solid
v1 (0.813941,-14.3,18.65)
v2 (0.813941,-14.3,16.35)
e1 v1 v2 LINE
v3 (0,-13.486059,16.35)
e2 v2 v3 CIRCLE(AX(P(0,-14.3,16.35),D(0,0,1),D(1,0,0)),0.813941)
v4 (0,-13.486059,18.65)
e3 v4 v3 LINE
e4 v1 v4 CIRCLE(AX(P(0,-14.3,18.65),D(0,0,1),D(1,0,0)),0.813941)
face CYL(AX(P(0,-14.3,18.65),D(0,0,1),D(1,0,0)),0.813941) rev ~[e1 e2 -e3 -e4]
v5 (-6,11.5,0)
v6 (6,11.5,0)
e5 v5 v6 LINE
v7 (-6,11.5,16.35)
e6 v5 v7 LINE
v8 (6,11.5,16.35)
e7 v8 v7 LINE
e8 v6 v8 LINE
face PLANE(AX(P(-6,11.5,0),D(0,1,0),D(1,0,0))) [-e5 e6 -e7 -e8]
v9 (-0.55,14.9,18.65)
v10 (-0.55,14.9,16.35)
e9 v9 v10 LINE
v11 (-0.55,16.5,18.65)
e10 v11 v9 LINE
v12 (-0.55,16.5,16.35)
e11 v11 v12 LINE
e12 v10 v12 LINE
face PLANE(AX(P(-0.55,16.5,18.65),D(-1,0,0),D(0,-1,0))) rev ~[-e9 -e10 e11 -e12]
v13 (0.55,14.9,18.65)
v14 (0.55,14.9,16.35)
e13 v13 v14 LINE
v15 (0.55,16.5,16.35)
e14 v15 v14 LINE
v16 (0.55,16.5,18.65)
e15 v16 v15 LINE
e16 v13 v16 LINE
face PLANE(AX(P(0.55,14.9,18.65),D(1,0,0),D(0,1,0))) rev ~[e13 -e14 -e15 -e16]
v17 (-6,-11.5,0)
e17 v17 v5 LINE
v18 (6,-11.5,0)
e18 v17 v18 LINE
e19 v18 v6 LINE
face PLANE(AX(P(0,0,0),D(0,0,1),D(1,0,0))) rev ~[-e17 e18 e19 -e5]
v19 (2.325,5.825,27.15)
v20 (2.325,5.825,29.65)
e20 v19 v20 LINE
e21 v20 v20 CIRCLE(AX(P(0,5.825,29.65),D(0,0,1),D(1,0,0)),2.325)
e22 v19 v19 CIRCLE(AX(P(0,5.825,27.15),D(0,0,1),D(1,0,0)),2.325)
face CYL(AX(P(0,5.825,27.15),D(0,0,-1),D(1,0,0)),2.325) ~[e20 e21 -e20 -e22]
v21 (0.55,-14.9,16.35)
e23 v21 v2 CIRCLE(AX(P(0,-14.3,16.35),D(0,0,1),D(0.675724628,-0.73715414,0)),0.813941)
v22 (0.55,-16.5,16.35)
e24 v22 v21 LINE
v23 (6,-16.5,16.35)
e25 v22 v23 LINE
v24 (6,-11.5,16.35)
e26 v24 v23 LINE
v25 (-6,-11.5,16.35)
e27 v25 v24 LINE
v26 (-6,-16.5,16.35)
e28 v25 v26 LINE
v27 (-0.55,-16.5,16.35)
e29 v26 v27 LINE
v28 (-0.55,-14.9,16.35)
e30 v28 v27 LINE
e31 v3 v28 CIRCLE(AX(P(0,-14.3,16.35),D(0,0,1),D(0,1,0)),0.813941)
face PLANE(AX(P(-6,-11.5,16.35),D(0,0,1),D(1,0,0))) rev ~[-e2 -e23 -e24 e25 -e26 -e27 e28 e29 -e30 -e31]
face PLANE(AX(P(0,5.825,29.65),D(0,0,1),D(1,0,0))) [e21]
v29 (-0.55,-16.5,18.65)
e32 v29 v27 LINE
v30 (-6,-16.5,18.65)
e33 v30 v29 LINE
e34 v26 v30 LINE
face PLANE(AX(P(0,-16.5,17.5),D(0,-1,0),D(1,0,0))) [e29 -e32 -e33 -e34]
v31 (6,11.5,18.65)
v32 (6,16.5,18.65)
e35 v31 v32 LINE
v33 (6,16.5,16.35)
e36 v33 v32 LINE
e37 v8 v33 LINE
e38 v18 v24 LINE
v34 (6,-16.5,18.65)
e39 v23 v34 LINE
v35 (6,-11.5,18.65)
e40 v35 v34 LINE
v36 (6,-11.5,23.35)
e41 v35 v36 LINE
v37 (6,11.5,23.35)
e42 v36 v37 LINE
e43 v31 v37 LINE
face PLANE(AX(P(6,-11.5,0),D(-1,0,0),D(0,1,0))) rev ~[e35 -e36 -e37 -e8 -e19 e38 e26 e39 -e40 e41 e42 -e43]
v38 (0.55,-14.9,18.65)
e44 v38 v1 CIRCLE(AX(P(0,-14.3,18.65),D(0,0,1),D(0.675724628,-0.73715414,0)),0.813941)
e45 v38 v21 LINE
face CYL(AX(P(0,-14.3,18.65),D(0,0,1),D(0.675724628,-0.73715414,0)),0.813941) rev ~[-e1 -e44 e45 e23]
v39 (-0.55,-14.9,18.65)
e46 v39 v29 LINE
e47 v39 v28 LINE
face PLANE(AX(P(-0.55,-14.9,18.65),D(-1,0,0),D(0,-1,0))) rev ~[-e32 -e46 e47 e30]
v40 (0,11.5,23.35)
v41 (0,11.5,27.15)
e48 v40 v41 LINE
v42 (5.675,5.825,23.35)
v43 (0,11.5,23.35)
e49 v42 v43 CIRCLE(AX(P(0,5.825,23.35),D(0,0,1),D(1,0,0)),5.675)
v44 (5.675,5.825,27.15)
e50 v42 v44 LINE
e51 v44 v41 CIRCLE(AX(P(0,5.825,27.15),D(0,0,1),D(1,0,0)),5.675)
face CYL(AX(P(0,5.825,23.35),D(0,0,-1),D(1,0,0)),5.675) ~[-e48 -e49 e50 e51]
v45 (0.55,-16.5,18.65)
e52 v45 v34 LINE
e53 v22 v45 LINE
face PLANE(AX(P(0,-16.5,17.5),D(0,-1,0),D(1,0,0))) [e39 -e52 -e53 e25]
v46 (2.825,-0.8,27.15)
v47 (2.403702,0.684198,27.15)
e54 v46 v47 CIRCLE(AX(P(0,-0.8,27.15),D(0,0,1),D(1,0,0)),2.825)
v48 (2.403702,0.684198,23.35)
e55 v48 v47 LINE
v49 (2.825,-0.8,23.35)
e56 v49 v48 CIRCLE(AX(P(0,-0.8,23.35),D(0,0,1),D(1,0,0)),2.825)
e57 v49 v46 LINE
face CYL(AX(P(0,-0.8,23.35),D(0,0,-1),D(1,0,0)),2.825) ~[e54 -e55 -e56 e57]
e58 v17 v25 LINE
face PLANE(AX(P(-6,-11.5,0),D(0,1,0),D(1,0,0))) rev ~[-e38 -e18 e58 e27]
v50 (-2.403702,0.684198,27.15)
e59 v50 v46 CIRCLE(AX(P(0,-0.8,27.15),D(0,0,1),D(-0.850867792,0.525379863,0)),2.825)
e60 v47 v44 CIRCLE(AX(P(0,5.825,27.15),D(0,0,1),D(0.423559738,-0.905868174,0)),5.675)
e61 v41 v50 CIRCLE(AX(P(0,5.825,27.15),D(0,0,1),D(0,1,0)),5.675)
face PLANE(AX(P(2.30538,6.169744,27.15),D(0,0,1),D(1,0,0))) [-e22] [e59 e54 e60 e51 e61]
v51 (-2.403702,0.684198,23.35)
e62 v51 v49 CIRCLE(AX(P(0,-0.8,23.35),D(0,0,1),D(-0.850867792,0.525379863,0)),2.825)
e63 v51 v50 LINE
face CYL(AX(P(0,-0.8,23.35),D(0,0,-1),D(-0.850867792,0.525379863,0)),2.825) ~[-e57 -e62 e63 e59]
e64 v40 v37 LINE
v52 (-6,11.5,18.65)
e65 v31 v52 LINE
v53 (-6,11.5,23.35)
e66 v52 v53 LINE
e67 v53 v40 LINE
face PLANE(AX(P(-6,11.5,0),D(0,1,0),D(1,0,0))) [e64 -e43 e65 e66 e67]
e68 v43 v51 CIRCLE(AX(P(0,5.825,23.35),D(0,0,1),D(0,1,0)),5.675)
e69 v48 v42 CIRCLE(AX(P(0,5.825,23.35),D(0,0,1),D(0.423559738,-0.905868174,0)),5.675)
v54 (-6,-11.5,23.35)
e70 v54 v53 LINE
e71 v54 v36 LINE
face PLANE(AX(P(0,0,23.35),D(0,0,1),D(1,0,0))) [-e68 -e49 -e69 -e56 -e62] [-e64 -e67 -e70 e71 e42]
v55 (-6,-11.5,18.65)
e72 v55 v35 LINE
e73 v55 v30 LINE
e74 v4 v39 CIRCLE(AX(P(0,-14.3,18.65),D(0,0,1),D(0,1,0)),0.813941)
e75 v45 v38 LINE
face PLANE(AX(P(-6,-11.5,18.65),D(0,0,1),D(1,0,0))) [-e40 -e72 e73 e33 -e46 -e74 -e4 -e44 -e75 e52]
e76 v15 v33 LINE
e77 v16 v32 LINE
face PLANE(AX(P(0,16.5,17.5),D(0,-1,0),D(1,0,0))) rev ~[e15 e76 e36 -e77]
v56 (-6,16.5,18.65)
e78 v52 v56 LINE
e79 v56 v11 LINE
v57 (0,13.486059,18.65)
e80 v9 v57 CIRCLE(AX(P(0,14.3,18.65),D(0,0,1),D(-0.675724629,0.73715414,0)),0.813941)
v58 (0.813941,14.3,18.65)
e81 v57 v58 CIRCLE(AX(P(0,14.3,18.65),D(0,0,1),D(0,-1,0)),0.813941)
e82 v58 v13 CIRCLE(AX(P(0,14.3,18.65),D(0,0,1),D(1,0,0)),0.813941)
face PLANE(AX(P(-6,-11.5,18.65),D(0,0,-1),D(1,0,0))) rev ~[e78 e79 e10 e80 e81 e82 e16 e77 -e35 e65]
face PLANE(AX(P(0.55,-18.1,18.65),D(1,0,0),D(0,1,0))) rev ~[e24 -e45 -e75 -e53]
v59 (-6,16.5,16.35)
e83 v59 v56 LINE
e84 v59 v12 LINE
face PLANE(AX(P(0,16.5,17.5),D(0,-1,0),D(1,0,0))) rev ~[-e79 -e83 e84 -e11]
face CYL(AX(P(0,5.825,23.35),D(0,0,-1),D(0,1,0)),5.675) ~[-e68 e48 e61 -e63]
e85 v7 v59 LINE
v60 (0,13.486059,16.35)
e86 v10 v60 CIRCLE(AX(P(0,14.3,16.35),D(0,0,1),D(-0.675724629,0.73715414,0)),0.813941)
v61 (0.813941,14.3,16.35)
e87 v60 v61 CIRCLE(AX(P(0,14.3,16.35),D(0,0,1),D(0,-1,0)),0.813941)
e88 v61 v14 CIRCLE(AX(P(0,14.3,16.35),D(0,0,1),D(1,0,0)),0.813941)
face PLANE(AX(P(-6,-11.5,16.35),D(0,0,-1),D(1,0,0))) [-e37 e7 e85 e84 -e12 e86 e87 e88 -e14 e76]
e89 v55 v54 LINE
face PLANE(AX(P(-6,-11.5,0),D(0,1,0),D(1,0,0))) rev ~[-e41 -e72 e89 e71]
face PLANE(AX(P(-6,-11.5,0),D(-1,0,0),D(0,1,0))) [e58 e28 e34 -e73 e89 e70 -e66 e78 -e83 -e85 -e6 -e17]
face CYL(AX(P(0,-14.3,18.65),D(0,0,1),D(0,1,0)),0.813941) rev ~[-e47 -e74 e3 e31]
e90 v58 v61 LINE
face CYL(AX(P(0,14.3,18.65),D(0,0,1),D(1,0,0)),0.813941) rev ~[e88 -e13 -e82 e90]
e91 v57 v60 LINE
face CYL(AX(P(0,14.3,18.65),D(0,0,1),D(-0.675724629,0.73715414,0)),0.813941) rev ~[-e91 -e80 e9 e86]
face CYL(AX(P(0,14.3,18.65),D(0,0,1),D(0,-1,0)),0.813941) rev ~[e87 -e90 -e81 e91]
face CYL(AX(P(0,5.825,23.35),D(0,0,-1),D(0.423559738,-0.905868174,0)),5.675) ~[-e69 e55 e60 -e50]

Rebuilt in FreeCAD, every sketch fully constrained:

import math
import FreeCAD as App
import Part
import Sketcher
from FreeCAD import Vector
Q = App.Units.Quantity

doc = App.newDocument("Part")
params = doc.addObject("Spreadsheet::Sheet", "Params")
for row, (alias, value) in enumerate([
    ("sketch1_width", "12 mm"),
    ("sketch1_height", "23 mm"),
    ("pad1_length", "23.35 mm"),
    ("sketch2_width", "12 mm"),
    ("sketch2_height", "2.3 mm"),
    ("pad2_length", "5 mm"),
    ("pad2_length2", "28 mm"),
    ("pad3_length", "3.8 mm"),
    ("sketch4_diameter", "4.65 mm"),
    ("pad4_length", "2.5 mm"),
    ("sketch5_width", "1.1 mm"),
    ("sketch5_height", "1.6 mm"),
    ("pocket1_length", "25 mm"),
    ("sketch6_width", "1.1 mm"),
    ("sketch6_height", "3.2 mm"),
    ("pocket2_length", "25 mm"),
], start=1):
    params.set(f"A{row}", alias)
    params.set(f"B{row}", "=" + value)
    params.setAlias(f"B{row}", alias)

body = doc.addObject("PartDesign::Body", "Body")

sketch1 = body.newObject("Sketcher::SketchObject", "Sketch")
sketch1.AttachmentSupport = (doc.getObject("XY_Plane"), [""])
sketch1.MapMode = "FlatFace"
sketch1.addGeometry([
    Part.LineSegment(Vector(-6, 11.5, 0), Vector(-6, -11.5, 0)),
    Part.LineSegment(Vector(-6, -11.5, 0), Vector(6, -11.5, 0)),
    Part.LineSegment(Vector(6, -11.5, 0), Vector(6, 11.5, 0)),
    Part.LineSegment(Vector(6, 11.5, 0), Vector(-6, 11.5, 0)),
], False)
sketch1.addConstraint([
    Sketcher.Constraint("Coincident", 0, 2, 1, 1),
    Sketcher.Constraint("Coincident", 1, 2, 2, 1),
    Sketcher.Constraint("Coincident", 2, 2, 3, 1),
    Sketcher.Constraint("Coincident", 3, 2, 0, 1),
    Sketcher.Constraint("Vertical", 0),
    Sketcher.Constraint("Horizontal", 1),
    Sketcher.Constraint("Vertical", 2),
    Sketcher.Constraint("Horizontal", 3),
    Sketcher.Constraint("Symmetric", 0, 2, 2, 2, -1, 1),
    Sketcher.Constraint("DistanceX", 1, 1, 1, 2, Q("12 mm")),
    Sketcher.Constraint("DistanceY", 0, 2, 0, 1, Q("23 mm")),
])
sketch1.setExpression("Constraints[9]", "Params.sketch1_width")
sketch1.setExpression("Constraints[10]", "Params.sketch1_height")
pad1 = body.newObject("PartDesign::Pad", "Pad")
pad1.Profile = sketch1
pad1.setExpression("Length", "Params.pad1_length")

sketch2 = body.newObject("Sketcher::SketchObject", "Sketch001")
sketch2.AttachmentSupport = (doc.getObject("XZ_Plane"), [""])
sketch2.MapMode = "FlatFace"
sketch2.AttachmentOffset = App.Placement(Vector(0, 0, 11.5), App.Rotation())
sketch2.addGeometry([
    Part.LineSegment(Vector(-6, 18.65, 0), Vector(-6, 16.35, 0)),
    Part.LineSegment(Vector(-6, 16.35, 0), Vector(6, 16.35, 0)),
    Part.LineSegment(Vector(6, 16.35, 0), Vector(6, 18.65, 0)),
    Part.LineSegment(Vector(6, 18.65, 0), Vector(-6, 18.65, 0)),
], False)
sketch2.addConstraint([
    Sketcher.Constraint("Coincident", 0, 2, 1, 1),
    Sketcher.Constraint("Coincident", 1, 2, 2, 1),
    Sketcher.Constraint("Coincident", 2, 2, 3, 1),
    Sketcher.Constraint("Coincident", 3, 2, 0, 1),
    Sketcher.Constraint("Vertical", 0),
    Sketcher.Constraint("Horizontal", 1),
    Sketcher.Constraint("Vertical", 2),
    Sketcher.Constraint("Horizontal", 3),
    Sketcher.Constraint("DistanceX", 1, 1, 1, 2, Q("12 mm")),
    Sketcher.Constraint("DistanceY", 0, 2, 0, 1, Q("2.3 mm")),
    Sketcher.Constraint("DistanceX", 0, 2, -1, 1, Q("6 mm")),
    Sketcher.Constraint("DistanceY", -1, 1, 0, 2, Q("16.35 mm")),
])
sketch2.setExpression("Constraints[8]", "Params.sketch2_width")
sketch2.setExpression("Constraints[9]", "Params.sketch2_height")
pad2 = body.newObject("PartDesign::Pad", "Pad001")
pad2.Profile = sketch2
pad2.Type = "TwoLengths"
pad2.setExpression("Length", "Params.pad2_length")
pad2.setExpression("Length2", "Params.pad2_length2")

sketch3 = body.newObject("Sketcher::SketchObject", "Sketch002")
sketch3.AttachmentSupport = (doc.getObject("XY_Plane"), [""])
sketch3.MapMode = "FlatFace"
sketch3.AttachmentOffset = App.Placement(Vector(0, 0, 23.35), App.Rotation())
sketch3.addGeometry([
    Part.ArcOfCircle(Part.Circle(Vector(0, -0.8, 0), Vector(0, 0, 1), 2.825), math.radians(0), math.radians(31.693819)),
    Part.ArcOfCircle(Part.Circle(Vector(0, 5.825, 0), Vector(0, 0, 1), 5.675), math.radians(-64.940466), math.radians(0)),
    Part.ArcOfCircle(Part.Circle(Vector(0, 5.825, 0), Vector(0, 0, 1), 5.675), math.radians(0), math.radians(90)),
    Part.ArcOfCircle(Part.Circle(Vector(0, 5.825, 0), Vector(0, 0, 1), 5.675), math.radians(90), math.radians(244.940466)),
    Part.ArcOfCircle(Part.Circle(Vector(0, -0.8, 0), Vector(0, 0, 1), 2.825), math.radians(148.306181), math.radians(360)),
], False)
sketch3.addConstraint([
    Sketcher.Constraint("Coincident", 0, 2, 1, 1),
    Sketcher.Constraint("Tangent", 1, 2, 2, 1),
    Sketcher.Constraint("Tangent", 2, 2, 3, 1),
    Sketcher.Constraint("Coincident", 3, 2, 4, 1),
    Sketcher.Constraint("Tangent", 4, 2, 0, 1),
    Sketcher.Constraint("Coincident", 3, 3, 1, 3),
    Sketcher.Constraint("Equal", 0, 4),
    Sketcher.Constraint("Symmetric", 0, 2, 3, 2, -2),
    Sketcher.Constraint("PointOnObject", 2, 2, -2),
    Sketcher.Constraint("Horizontal", 3, 3, 1, 2),
    Sketcher.Constraint("Horizontal", 0, 3, 4, 2),
    Sketcher.Constraint("Radius", 0, Q("2.825 mm")),
    Sketcher.Constraint("Radius", 1, Q("5.675 mm")),
    Sketcher.Constraint("DistanceY", 0, 3, -1, 1, Q("0.8 mm")),
    Sketcher.Constraint("DistanceY", -1, 1, 2, 2, Q("11.5 mm")),
])
pad3 = body.newObject("PartDesign::Pad", "Pad002")
pad3.Profile = sketch3
pad3.setExpression("Length", "Params.pad3_length")

sketch4 = body.newObject("Sketcher::SketchObject", "Sketch003")
sketch4.AttachmentSupport = (doc.getObject("XY_Plane"), [""])
sketch4.MapMode = "FlatFace"
sketch4.AttachmentOffset = App.Placement(Vector(0, 0, 27.15), App.Rotation())
sketch4.addGeometry(Part.Circle(Vector(0, 5.825, 0), Vector(0, 0, 1), 2.325), False)
sketch4.addConstraint([
    Sketcher.Constraint("PointOnObject", 0, 3, -2),
    Sketcher.Constraint("Diameter", 0, Q("4.65 mm")),
    Sketcher.Constraint("DistanceY", -1, 1, 0, 3, Q("5.825 mm")),
])
sketch4.setExpression("Constraints[1]", "Params.sketch4_diameter")
pad4 = body.newObject("PartDesign::Pad", "Pad003")
pad4.Profile = sketch4
pad4.setExpression("Length", "Params.pad4_length")

sketch5 = body.newObject("Sketcher::SketchObject", "Sketch004")
sketch5.AttachmentSupport = (doc.getObject("XY_Plane"), [""])
sketch5.MapMode = "FlatFace"
sketch5.AttachmentOffset = App.Placement(Vector(0, 0, 18.65), App.Rotation())
sketch5.addGeometry([
    Part.ArcOfCircle(Part.Circle(Vector(0, 14.3, 0), Vector(0, 0, 1), 0.813941), math.radians(132.510447), math.radians(270)),
    Part.ArcOfCircle(Part.Circle(Vector(0, 14.3, 0), Vector(0, 0, 1), 0.813941), math.radians(-90), math.radians(0)),
    Part.ArcOfCircle(Part.Circle(Vector(0, 14.3, 0), Vector(0, 0, 1), 0.813941), math.radians(0), math.radians(47.489553)),
    Part.LineSegment(Vector(0.55, 14.9, 0), Vector(0.55, 16.5, 0)),
    Part.LineSegment(Vector(0.55, 16.5, 0), Vector(-0.55, 16.5, 0)),
    Part.LineSegment(Vector(-0.55, 16.5, 0), Vector(-0.55, 14.9, 0)),
], False)
sketch5.addConstraint([
    Sketcher.Constraint("Tangent", 0, 2, 1, 1),
    Sketcher.Constraint("Tangent", 1, 2, 2, 1),
    Sketcher.Constraint("Coincident", 2, 2, 3, 1),
    Sketcher.Constraint("Coincident", 3, 2, 4, 1),
    Sketcher.Constraint("Coincident", 4, 2, 5, 1),
    Sketcher.Constraint("Coincident", 5, 2, 0, 1),
    Sketcher.Constraint("Vertical", 3),
    Sketcher.Constraint("Horizontal", 4),
    Sketcher.Constraint("Vertical", 5),
    Sketcher.Constraint("Coincident", 2, 3, 0, 3),
    Sketcher.Constraint("Symmetric", 2, 2, 5, 2, -2),
    Sketcher.Constraint("PointOnObject", 0, 2, -2),
    Sketcher.Constraint("Horizontal", 2, 3, 1, 2),
    Sketcher.Constraint("DistanceX", 4, 2, 4, 1, Q("1.1 mm")),
    Sketcher.Constraint("DistanceY", 3, 1, 3, 2, Q("1.6 mm")),
    Sketcher.Constraint("DistanceY", -1, 1, 0, 3, Q("14.3 mm")),
    Sketcher.Constraint("DistanceY", -1, 1, 2, 2, Q("14.9 mm")),
])
sketch5.setExpression("Constraints[13]", "Params.sketch5_width")
sketch5.setExpression("Constraints[14]", "Params.sketch5_height")
pocket1 = body.newObject("PartDesign::Pocket", "Pocket")
pocket1.Profile = sketch5
pocket1.setExpression("Length", "Params.pocket1_length")

sketch6 = body.newObject("Sketcher::SketchObject", "Sketch005")
sketch6.AttachmentSupport = (doc.getObject("XY_Plane"), [""])
sketch6.MapMode = "FlatFace"
sketch6.AttachmentOffset = App.Placement(Vector(0, 0, 18.65), App.Rotation())
sketch6.addGeometry([
    Part.ArcOfCircle(Part.Circle(Vector(0, -14.3, 0), Vector(0, 0, 1), 0.813941), math.radians(90), math.radians(227.489553)),
    Part.LineSegment(Vector(-0.55, -14.9, 0), Vector(-0.55, -18.1, 0)),
    Part.LineSegment(Vector(-0.55, -18.1, 0), Vector(0.55, -18.1, 0)),
    Part.LineSegment(Vector(0.55, -18.1, 0), Vector(0.55, -14.9, 0)),
    Part.ArcOfCircle(Part.Circle(Vector(0, -14.3, 0), Vector(0, 0, 1), 0.813941), math.radians(-47.489553), math.radians(0)),
    Part.ArcOfCircle(Part.Circle(Vector(0, -14.3, 0), Vector(0, 0, 1), 0.813941), math.radians(0), math.radians(90)),
], False)
sketch6.addConstraint([
    Sketcher.Constraint("Coincident", 0, 2, 1, 1),
    Sketcher.Constraint("Coincident", 1, 2, 2, 1),
    Sketcher.Constraint("Coincident", 2, 2, 3, 1),
    Sketcher.Constraint("Coincident", 3, 2, 4, 1),
    Sketcher.Constraint("Tangent", 4, 2, 5, 1),
    Sketcher.Constraint("Tangent", 5, 2, 0, 1),
    Sketcher.Constraint("Vertical", 1),
    Sketcher.Constraint("Horizontal", 2),
    Sketcher.Constraint("Vertical", 3),
    Sketcher.Constraint("Coincident", 4, 3, 0, 3),
    Sketcher.Constraint("Symmetric", 0, 2, 3, 2, -2),
    Sketcher.Constraint("PointOnObject", 5, 2, -2),
    Sketcher.Constraint("Horizontal", 5, 3, 4, 2),
    Sketcher.Constraint("DistanceX", 2, 1, 2, 2, Q("1.1 mm")),
    Sketcher.Constraint("DistanceY", 1, 2, 1, 1, Q("3.2 mm")),
    Sketcher.Constraint("DistanceY", 0, 3, -1, 1, Q("14.3 mm")),
    Sketcher.Constraint("DistanceY", 0, 2, -1, 1, Q("14.9 mm")),
])
sketch6.setExpression("Constraints[13]", "Params.sketch6_width")
sketch6.setExpression("Constraints[14]", "Params.sketch6_height")
pocket2 = body.newObject("PartDesign::Pocket", "Pocket001")
pocket2.Profile = sketch6
pocket2.setExpression("Length", "Params.pocket2_length")

doc.recompute()
